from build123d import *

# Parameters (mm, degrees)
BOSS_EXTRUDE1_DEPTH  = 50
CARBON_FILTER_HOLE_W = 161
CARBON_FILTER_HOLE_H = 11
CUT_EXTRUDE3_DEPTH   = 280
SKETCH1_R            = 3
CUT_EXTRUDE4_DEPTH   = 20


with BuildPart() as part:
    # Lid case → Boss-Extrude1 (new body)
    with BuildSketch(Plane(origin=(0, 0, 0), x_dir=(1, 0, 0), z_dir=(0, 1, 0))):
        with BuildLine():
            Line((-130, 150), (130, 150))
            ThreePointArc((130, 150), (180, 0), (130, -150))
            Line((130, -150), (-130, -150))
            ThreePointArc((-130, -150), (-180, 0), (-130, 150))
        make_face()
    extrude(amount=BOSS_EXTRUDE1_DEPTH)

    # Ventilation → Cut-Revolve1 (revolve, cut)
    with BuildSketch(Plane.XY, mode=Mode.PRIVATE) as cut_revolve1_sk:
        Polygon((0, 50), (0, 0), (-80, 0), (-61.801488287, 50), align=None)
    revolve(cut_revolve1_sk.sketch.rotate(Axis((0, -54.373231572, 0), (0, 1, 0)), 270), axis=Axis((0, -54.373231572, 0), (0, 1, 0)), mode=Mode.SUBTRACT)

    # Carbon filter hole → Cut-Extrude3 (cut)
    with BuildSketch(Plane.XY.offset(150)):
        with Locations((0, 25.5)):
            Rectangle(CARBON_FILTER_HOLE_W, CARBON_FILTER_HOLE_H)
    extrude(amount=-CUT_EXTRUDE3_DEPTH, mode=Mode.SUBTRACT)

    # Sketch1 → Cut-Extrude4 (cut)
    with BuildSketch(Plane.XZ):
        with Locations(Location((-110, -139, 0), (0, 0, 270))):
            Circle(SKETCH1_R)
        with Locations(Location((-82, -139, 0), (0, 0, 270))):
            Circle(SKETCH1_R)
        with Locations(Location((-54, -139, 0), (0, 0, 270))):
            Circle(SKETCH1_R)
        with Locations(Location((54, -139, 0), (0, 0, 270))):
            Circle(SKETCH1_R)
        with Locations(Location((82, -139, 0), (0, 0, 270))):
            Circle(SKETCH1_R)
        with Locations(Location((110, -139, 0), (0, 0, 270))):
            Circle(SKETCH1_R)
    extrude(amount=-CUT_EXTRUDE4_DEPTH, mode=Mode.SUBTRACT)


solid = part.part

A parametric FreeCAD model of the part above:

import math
import FreeCAD as App
import Part
import Sketcher
Q = App.Units.Quantity


def add_polygon(sketch, points):
    """Adds a closed chain of lines whose ends are joined by coincident constraints."""
    first, n = sketch.GeometryCount, len(points)
    for a, b in zip(points, points[1:] + points[:1]):
        sketch.addGeometry(Part.LineSegment(App.Vector(*a, 0), App.Vector(*b, 0)), False)
    for i in range(n):
        sketch.addConstraint(Sketcher.Constraint("Coincident", first + i, 2, first + (i + 1) % n, 1))

doc = App.newDocument("Part")
body = doc.addObject("PartDesign::Body", "Body")

sketch1 = doc.addObject("Sketcher::SketchObject", "Sketch")
body.addObject(sketch1)
sketch1.AttachmentSupport = (doc.XZ_Plane, [""])
sketch1.MapMode = "FlatFace"
sketch1.addGeometry([
    Part.LineSegment(App.Vector(130, -150, 0), App.Vector(-130, -150, 0)),
    Part.ArcOfCircle(Part.Circle(App.Vector(70, 0, 0), App.Vector(0, 0, 1), 250), math.radians(143.130102), math.radians(216.869898)),
    Part.LineSegment(App.Vector(-130, 150, 0), App.Vector(130, 150, 0)),
    Part.ArcOfCircle(Part.Circle(App.Vector(-70, 0, 0), App.Vector(0, 0, 1), 250), math.radians(-36.869898), math.radians(36.869898)),
], False)
sketch1.addConstraint([
    Sketcher.Constraint("Coincident", 0, 2, 1, 2),
    Sketcher.Constraint("Coincident", 1, 1, 2, 1),
    Sketcher.Constraint("Coincident", 2, 2, 3, 2),
    Sketcher.Constraint("Coincident", 3, 1, 0, 1),
    Sketcher.Constraint("Horizontal", 0),
    Sketcher.Constraint("Horizontal", 2),
    Sketcher.Constraint("Equal", 1, 3),
    Sketcher.Constraint("Symmetric", 1, 3, 3, 3, -1, 1),
    Sketcher.Constraint("Symmetric", 0, 2, 1, 1, -1),
    Sketcher.Constraint("Radius", 1, 250.0),
    Sketcher.Constraint("DistanceX", 0, 2, 0, 1, 260.0),
    Sketcher.Constraint("DistanceX", -1, 1, 1, 3, 70.0),
])
pad1 = doc.addObject("PartDesign::Pad", "Pad")
body.addObject(pad1)
pad1.Profile = sketch1
pad1.Length = 50
pad1.Reversed = True

sketch2 = doc.addObject("Sketcher::SketchObject", "Sketch001")
body.addObject(sketch2)
sketch2.AttachmentSupport = (doc.XY_Plane, [""])
sketch2.MapMode = "FlatFace"
add_polygon(sketch2, [(0, 0), (0, 50), (-61.801488, 50), (-80, 0)])
sketch2.addConstraint([
    Sketcher.Constraint("Vertical", 0),
    Sketcher.Constraint("Horizontal", 1),
    Sketcher.Constraint("Horizontal", 3),
    Sketcher.Constraint("Coincident", 3, 2, -1, 1),
    Sketcher.Constraint("DistanceX", 3, 1, 3, 2, 80.0),
    Sketcher.Constraint("DistanceY", 0, 1, 0, 2, 50.0),
    Sketcher.Constraint("Angle", 2, Q("-110 deg")),
])
groove = doc.addObject("PartDesign::Groove", "Groove")
body.addObject(groove)
groove.Profile = sketch2
groove.ReferenceAxis = (sketch2, ["V_Axis"])
groove.Angle = 360

sketch3 = doc.addObject("Sketcher::SketchObject", "Sketch002")
body.addObject(sketch3)
sketch3.AttachmentSupport = (doc.XY_Plane, [""])
sketch3.MapMode = "FlatFace"
sketch3.AttachmentOffset = App.Placement(App.Vector(0, 0, 150), App.Rotation())
add_polygon(sketch3, [(-80.5, 31), (-80.5, 20), (80.5, 20), (80.5, 31)])
sketch3.addConstraint([
    Sketcher.Constraint("Vertical", 0),
    Sketcher.Constraint("Horizontal", 1),
    Sketcher.Constraint("Vertical", 2),
    Sketcher.Constraint("Horizontal", 3),
    Sketcher.Constraint("DistanceX", 1, 1, 1, 2, 161.0),
    Sketcher.Constraint("DistanceY", 0, 2, 0, 1, 11.0),
    Sketcher.Constraint("DistanceY", -1, 1, 0, 2, 20.0),
    Sketcher.Constraint("DistanceX", 0, 2, -1, 1, 80.5),
])
pocket1 = doc.addObject("PartDesign::Pocket", "Pocket")
body.addObject(pocket1)
pocket1.Profile = sketch3
pocket1.Length = 280

sketch4 = doc.addObject("Sketcher::SketchObject", "Sketch003")
body.addObject(sketch4)
sketch4.AttachmentSupport = (doc.XZ_Plane, [""])
sketch4.MapMode = "FlatFace"
sketch4.addGeometry([
    Part.Circle(App.Vector(-110, -139, 0), App.Vector(0, 0, 1), 3),
    Part.Circle(App.Vector(-82, -139, 0), App.Vector(0, 0, 1), 3),
    Part.Circle(App.Vector(-54, -139, 0), App.Vector(0, 0, 1), 3),
    Part.Circle(App.Vector(54, -139, 0), App.Vector(0, 0, 1), 3),
    Part.Circle(App.Vector(82, -139, 0), App.Vector(0, 0, 1), 3),
    Part.Circle(App.Vector(110, -139, 0), App.Vector(0, 0, 1), 3),
], False)
sketch4.addConstraint([
    Sketcher.Constraint("Equal", 0, 1),
    Sketcher.Constraint("Equal", 1, 2),
    Sketcher.Constraint("Equal", 2, 3),
    Sketcher.Constraint("Equal", 3, 4),
    Sketcher.Constraint("Equal", 4, 5),
    Sketcher.Constraint("Symmetric", 2, 3, 3, 3, -2),
    Sketcher.Constraint("Symmetric", 1, 3, 4, 3, -2),
    Sketcher.Constraint("Symmetric", 0, 3, 5, 3, -2),
    Sketcher.Constraint("Horizontal", 0, 3, 1, 3),
    Sketcher.Constraint("Horizontal", 1, 3, 2, 3),
    Sketcher.Constraint("Diameter", 0, 6.0),
    Sketcher.Constraint("DistanceX", 0, 3, -1, 1, 110.0),
    Sketcher.Constraint("DistanceY", 0, 3, -1, 1, 139.0),
    Sketcher.Constraint("DistanceX", 1, 3, -1, 1, 82.0),
    Sketcher.Constraint("DistanceX", 2, 3, -1, 1, 54.0),
])
pocket2 = doc.addObject("PartDesign::Pocket", "Pocket001")
body.addObject(pocket2)
pocket2.Profile = sketch4
pocket2.Length = 20

doc.recompute()
